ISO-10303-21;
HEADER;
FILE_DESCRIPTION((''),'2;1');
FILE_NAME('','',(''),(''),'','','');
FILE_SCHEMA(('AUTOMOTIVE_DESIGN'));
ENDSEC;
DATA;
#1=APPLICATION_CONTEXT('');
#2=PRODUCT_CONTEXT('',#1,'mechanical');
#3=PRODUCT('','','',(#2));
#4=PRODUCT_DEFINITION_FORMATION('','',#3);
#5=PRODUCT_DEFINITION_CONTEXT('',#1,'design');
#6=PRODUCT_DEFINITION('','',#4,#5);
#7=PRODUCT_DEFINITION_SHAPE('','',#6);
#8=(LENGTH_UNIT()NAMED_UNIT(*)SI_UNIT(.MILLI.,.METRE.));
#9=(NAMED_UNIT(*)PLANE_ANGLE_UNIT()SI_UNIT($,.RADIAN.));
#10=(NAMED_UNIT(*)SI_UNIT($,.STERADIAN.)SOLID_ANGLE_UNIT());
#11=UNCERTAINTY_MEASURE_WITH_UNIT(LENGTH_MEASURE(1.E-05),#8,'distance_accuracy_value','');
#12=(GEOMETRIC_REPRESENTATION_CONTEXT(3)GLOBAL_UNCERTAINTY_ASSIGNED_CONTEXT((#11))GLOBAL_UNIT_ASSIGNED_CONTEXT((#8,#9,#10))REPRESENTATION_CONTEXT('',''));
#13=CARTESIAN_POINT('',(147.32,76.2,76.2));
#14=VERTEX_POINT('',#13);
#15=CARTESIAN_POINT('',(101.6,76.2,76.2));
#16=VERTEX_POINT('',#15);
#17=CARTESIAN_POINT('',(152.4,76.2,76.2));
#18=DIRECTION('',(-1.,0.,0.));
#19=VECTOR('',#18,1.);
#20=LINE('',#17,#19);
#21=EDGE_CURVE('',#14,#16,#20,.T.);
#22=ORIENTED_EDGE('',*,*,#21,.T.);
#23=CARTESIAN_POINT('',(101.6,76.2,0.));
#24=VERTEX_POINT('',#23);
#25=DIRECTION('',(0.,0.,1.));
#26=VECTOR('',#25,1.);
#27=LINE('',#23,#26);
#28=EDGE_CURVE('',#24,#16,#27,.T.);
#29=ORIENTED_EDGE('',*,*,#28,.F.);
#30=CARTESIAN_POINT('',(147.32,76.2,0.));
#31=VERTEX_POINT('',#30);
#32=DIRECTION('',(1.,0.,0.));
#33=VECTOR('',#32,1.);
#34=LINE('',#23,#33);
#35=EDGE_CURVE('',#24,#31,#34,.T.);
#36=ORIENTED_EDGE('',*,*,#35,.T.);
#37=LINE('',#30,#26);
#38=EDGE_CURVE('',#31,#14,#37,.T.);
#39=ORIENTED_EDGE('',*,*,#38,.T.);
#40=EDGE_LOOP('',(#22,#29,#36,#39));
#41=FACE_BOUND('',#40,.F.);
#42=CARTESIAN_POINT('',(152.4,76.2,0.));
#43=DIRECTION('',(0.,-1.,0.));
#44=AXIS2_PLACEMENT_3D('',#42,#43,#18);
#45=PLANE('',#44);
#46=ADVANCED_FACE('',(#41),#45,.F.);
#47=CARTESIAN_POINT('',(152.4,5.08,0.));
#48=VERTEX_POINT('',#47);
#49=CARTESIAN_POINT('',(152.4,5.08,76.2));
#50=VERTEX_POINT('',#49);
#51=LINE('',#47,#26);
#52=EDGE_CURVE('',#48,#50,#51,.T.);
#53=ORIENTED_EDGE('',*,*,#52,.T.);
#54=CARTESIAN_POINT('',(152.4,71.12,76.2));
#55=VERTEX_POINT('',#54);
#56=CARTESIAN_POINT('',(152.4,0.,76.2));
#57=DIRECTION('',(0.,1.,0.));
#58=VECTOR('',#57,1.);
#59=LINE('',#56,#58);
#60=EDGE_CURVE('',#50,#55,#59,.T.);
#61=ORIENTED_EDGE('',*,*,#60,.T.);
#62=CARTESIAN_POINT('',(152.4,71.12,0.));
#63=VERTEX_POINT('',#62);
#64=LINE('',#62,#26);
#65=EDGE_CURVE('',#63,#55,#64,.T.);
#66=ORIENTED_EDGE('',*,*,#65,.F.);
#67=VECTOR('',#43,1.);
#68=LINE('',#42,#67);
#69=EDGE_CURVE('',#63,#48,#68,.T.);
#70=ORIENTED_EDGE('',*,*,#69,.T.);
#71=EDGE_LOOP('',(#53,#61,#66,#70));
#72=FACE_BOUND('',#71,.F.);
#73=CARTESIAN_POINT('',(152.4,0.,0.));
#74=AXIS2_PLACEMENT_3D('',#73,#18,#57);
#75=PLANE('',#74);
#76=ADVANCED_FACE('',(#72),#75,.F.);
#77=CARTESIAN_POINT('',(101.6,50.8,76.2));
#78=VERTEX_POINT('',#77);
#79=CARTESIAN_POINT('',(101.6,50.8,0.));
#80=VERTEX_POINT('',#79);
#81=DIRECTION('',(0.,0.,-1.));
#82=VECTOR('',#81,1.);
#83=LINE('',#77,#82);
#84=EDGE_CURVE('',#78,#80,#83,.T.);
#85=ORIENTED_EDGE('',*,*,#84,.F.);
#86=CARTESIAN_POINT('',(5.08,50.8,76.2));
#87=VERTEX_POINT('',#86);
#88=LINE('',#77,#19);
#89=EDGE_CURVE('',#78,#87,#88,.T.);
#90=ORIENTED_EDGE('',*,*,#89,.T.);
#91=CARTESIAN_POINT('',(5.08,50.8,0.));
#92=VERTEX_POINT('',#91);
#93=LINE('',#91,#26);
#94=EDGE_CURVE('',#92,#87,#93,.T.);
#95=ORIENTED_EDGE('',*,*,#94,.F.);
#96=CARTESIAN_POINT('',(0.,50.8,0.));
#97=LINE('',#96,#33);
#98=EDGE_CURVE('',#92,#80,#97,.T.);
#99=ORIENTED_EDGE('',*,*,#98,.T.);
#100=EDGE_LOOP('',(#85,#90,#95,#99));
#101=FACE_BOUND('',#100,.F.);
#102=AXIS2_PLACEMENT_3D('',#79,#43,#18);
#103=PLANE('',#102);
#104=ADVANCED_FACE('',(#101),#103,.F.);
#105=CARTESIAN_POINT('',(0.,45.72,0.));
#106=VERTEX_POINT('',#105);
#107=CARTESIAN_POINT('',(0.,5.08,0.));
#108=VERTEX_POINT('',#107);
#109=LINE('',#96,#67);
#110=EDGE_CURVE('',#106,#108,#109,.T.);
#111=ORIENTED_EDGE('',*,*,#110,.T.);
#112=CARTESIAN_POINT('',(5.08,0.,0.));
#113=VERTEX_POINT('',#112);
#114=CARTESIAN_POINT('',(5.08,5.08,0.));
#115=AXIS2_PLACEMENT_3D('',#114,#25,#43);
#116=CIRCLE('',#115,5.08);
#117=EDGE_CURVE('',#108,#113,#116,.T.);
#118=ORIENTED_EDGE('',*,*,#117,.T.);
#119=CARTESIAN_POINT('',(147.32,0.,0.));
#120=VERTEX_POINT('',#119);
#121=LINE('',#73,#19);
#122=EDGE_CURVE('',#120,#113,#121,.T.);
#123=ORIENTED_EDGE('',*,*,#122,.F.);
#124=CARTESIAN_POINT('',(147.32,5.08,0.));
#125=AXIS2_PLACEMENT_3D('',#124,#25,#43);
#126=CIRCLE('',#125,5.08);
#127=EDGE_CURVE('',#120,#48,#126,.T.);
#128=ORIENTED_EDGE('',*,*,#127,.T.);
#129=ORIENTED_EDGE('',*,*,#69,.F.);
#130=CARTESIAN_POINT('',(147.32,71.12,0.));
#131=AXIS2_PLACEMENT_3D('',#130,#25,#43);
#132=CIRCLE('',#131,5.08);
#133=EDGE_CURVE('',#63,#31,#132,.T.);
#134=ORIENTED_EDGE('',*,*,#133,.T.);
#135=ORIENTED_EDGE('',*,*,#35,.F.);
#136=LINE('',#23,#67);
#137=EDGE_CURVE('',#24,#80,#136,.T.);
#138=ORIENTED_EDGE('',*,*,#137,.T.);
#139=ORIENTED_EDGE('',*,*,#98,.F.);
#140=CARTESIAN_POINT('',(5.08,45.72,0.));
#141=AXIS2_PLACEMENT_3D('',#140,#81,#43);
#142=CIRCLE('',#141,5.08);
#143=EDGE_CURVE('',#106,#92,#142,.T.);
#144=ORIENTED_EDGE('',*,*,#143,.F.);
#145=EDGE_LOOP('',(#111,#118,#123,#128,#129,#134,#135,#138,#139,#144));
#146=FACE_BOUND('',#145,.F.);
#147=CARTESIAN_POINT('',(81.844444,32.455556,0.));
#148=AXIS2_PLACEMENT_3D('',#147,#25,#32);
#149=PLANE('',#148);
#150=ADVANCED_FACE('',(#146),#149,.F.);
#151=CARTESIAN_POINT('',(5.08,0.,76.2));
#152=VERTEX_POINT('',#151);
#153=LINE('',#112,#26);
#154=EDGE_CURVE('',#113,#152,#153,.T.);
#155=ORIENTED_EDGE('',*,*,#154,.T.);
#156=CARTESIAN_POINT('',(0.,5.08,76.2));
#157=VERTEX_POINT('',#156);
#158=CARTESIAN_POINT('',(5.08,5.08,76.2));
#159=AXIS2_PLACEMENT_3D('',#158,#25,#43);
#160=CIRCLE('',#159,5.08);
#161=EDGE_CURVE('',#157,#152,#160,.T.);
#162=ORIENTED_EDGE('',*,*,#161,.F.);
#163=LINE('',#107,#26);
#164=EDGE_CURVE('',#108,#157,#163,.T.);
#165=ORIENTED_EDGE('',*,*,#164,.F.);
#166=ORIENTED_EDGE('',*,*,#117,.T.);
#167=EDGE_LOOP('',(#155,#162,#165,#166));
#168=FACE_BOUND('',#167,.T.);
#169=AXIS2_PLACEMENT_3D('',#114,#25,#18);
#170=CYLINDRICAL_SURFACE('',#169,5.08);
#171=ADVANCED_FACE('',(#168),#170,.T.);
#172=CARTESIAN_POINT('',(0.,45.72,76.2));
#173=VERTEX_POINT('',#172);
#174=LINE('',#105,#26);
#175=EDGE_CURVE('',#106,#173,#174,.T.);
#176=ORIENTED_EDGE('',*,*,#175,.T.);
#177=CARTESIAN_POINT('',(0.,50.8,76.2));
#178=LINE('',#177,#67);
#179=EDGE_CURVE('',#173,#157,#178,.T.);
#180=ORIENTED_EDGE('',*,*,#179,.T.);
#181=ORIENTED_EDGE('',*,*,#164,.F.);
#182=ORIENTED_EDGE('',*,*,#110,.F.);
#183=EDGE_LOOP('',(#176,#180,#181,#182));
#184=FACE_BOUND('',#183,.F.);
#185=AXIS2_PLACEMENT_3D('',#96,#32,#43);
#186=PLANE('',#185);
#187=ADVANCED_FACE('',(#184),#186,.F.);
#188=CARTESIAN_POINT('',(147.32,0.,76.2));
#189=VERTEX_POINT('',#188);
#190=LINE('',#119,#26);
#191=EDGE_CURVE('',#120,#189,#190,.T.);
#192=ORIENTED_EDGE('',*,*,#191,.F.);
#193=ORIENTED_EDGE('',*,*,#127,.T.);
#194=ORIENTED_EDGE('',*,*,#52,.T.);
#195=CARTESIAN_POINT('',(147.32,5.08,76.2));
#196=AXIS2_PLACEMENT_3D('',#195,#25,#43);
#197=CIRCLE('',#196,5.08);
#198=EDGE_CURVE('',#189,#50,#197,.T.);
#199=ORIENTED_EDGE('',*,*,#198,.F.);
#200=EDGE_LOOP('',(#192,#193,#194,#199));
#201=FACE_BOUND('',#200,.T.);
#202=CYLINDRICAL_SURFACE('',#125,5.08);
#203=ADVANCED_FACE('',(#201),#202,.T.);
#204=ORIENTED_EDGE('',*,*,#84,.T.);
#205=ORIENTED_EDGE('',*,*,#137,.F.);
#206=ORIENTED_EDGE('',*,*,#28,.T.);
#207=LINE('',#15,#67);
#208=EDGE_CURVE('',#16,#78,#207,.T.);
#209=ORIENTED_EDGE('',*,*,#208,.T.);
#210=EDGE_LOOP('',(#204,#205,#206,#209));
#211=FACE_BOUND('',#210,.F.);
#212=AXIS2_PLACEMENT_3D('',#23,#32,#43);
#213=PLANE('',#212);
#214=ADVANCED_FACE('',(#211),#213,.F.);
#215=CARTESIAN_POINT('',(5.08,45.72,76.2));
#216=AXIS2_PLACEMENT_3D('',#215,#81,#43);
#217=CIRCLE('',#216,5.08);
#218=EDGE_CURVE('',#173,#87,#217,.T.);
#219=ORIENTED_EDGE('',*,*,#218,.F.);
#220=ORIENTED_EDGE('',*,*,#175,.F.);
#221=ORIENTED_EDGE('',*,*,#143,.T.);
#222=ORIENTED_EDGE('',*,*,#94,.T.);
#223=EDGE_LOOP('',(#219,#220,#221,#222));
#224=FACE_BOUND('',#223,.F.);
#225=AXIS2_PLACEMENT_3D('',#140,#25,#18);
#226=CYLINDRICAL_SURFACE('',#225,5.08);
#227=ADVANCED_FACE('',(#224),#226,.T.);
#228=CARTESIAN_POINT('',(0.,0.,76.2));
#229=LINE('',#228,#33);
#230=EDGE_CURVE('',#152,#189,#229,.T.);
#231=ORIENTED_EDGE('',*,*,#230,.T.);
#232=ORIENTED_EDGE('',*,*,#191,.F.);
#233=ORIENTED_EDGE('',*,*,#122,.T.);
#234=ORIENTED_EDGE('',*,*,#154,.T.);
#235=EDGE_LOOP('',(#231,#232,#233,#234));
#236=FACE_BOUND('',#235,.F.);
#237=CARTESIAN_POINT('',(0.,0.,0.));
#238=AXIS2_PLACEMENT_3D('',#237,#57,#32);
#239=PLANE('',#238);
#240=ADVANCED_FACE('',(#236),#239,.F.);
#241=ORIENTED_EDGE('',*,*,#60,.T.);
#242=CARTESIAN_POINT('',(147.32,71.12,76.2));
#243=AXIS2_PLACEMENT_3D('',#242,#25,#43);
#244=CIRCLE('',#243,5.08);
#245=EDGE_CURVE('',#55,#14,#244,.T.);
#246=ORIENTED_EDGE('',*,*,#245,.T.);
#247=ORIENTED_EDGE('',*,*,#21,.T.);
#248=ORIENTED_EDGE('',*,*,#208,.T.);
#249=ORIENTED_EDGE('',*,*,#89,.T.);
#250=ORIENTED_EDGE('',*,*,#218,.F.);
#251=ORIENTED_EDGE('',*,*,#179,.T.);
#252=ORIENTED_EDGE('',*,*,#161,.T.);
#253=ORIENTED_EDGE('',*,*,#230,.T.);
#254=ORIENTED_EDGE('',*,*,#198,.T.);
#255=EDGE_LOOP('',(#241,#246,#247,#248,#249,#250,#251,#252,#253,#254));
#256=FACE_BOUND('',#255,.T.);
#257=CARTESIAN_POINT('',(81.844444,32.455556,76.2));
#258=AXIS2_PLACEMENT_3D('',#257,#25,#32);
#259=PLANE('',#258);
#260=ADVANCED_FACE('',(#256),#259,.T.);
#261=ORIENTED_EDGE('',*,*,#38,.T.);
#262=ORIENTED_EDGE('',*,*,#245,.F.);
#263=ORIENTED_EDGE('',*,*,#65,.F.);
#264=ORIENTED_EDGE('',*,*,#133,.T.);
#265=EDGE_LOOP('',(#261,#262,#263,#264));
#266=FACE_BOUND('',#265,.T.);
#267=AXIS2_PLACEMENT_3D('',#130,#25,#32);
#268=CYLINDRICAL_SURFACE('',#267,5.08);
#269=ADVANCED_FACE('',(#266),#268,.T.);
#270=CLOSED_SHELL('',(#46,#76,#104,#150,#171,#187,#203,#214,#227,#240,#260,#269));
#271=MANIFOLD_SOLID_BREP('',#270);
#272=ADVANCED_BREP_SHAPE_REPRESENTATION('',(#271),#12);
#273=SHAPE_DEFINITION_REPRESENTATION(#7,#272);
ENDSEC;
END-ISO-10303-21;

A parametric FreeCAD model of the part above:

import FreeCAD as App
import Part
import Sketcher

V = App.Vector
Q = App.Units.Quantity


def edges_at(feature, points):
    """Names of the edges that pass closest to the given points."""
    edges = feature.Shape.Edges
    near = lambda p: min(range(len(edges)), key=lambda i: edges[i].distToShape(Part.Vertex(*p))[0])
    return sorted({f"Edge{near(p) + 1}" for p in points})


def add_polygon(sketch, points):
    """Adds a closed chain of lines whose ends are joined by coincident constraints."""
    first, n = sketch.GeometryCount, len(points)
    for a, b in zip(points, points[1:] + points[:1]):
        sketch.addGeometry(Part.LineSegment(App.Vector(*a, 0), App.Vector(*b, 0)), False)
    for i in range(n):
        sketch.addConstraint(Sketcher.Constraint("Coincident", first + i, 2, first + (i + 1) % n, 1))

doc = App.newDocument("Part")
params = doc.addObject("Spreadsheet::Sheet", "Params")
for row, (alias, value) in enumerate([
    ("sketch1_width", "6 in"),
    ("sketch1_width2", "2 in"),
    ("sketch1_height", "3 in"),
    ("pad1_length", "2 in"),
    ("fillet_radius", "0.2 in"),
    ("fillet2_radius", "0.2 in"),
    ("sketch2_width", "6 in"),
    ("sketch2_width2", "2 in"),
    ("sketch2_height", "3 in"),
    ("pad2_length", "3 in"),
    ("fillet3_radius", "0.2 in"),
], start=1):
    params.set(f"A{row}", alias)
    params.set(f"B{row}", "=" + value)
    params.setAlias(f"B{row}", alias)

body = doc.addObject("PartDesign::Body", "Body")

# Sketch on XY plane
sketch1 = body.newObject("Sketcher::SketchObject", "Sketch")
sketch1.AttachmentSupport = (doc.getObject("XY_Plane"), [""])
sketch1.MapMode = "FlatFace"
add_polygon(sketch1, [(0, 50.8), (0, 0), (152.4, 0), (152.4, 76.2), (101.6, 76.2), (101.6, 50.8)])  # lines 0-5
sketch1.addConstraint([
    Sketcher.Constraint("Vertical", 0),
    Sketcher.Constraint("Horizontal", 1),
    Sketcher.Constraint("Vertical", 2),
    Sketcher.Constraint("Horizontal", 3),
    Sketcher.Constraint("Vertical", 4),
    Sketcher.Constraint("Horizontal", 5),
    Sketcher.Constraint("Coincident", 0, 2, -1, 1),
    Sketcher.Constraint("Equal", 3, 0),
    Sketcher.Constraint("DistanceX", 1, 1, 1, 2, Q("6 in")),
    Sketcher.Constraint("DistanceX", 3, 2, 3, 1, Q("2 in")),
    Sketcher.Constraint("DistanceY", 2, 1, 2, 2, Q("3 in")),
])
sketch1.setExpression("Constraints[14]", "Params.sketch1_width")
sketch1.setExpression("Constraints[15]", "Params.sketch1_width2")
sketch1.setExpression("Constraints[16]", "Params.sketch1_height")
pad1 = body.newObject("PartDesign::Pad", "Pad")
pad1.Profile = sketch1
pad1.setExpression("Length", "Params.pad1_length")
doc.recompute()

fillet = body.newObject("PartDesign::Fillet", "Fillet")
fillet.Base = (pad1, edges_at(pad1, [(0, 0, 25.4), (0, 50.8, 25.4), (152.4, 0, 25.4)]))
fillet.setExpression("Radius", "Params.fillet_radius")
doc.recompute()

fillet2 = body.newObject("PartDesign::Fillet", "Fillet001")
fillet2.Base = (fillet, edges_at(fillet, [(152.4, 76.2, 25.4)]))
fillet2.setExpression("Radius", "Params.fillet2_radius")

# Sketch on XY plane
sketch2 = body.newObject("Sketcher::SketchObject", "Sketch001")
sketch2.AttachmentSupport = (doc.getObject("XY_Plane"), [""])
sketch2.MapMode = "FlatFace"
add_polygon(sketch2, [(0, 50.8), (0, 0), (152.4, 0), (152.4, 76.2), (101.6, 76.2), (101.6, 50.8)])  # lines 0-5
sketch2.addConstraint([
    Sketcher.Constraint("Vertical", 0),
    Sketcher.Constraint("Horizontal", 1),
    Sketcher.Constraint("Vertical", 2),
    Sketcher.Constraint("Horizontal", 3),
    Sketcher.Constraint("Vertical", 4),
    Sketcher.Constraint("Horizontal", 5),
    Sketcher.Constraint("Coincident", 0, 2, -1, 1),
    Sketcher.Constraint("Equal", 3, 0),
    Sketcher.Constraint("DistanceX", 1, 1, 1, 2, Q("6 in")),
    Sketcher.Constraint("DistanceX", 3, 2, 3, 1, Q("2 in")),
    Sketcher.Constraint("DistanceY", 2, 1, 2, 2, Q("3 in")),
])
sketch2.setExpression("Constraints[14]", "Params.sketch2_width")
sketch2.setExpression("Constraints[15]", "Params.sketch2_width2")
sketch2.setExpression("Constraints[16]", "Params.sketch2_height")
pad2 = body.newObject("PartDesign::Pad", "Pad001")
pad2.Profile = sketch2
pad2.setExpression("Length", "Params.pad2_length")
doc.recompute()

fillet3 = body.newObject("PartDesign::Fillet", "Fillet002")
fillet3.Base = (pad2, edges_at(pad2, [
    (152.4, 76.2, 38.1),
    (152.4, 0, 38.1),
    (0, 0, 38.1),
    (0, 50.8, 38.1),
]))
fillet3.setExpression("Radius", "Params.fillet3_radius")

doc.recompute()
